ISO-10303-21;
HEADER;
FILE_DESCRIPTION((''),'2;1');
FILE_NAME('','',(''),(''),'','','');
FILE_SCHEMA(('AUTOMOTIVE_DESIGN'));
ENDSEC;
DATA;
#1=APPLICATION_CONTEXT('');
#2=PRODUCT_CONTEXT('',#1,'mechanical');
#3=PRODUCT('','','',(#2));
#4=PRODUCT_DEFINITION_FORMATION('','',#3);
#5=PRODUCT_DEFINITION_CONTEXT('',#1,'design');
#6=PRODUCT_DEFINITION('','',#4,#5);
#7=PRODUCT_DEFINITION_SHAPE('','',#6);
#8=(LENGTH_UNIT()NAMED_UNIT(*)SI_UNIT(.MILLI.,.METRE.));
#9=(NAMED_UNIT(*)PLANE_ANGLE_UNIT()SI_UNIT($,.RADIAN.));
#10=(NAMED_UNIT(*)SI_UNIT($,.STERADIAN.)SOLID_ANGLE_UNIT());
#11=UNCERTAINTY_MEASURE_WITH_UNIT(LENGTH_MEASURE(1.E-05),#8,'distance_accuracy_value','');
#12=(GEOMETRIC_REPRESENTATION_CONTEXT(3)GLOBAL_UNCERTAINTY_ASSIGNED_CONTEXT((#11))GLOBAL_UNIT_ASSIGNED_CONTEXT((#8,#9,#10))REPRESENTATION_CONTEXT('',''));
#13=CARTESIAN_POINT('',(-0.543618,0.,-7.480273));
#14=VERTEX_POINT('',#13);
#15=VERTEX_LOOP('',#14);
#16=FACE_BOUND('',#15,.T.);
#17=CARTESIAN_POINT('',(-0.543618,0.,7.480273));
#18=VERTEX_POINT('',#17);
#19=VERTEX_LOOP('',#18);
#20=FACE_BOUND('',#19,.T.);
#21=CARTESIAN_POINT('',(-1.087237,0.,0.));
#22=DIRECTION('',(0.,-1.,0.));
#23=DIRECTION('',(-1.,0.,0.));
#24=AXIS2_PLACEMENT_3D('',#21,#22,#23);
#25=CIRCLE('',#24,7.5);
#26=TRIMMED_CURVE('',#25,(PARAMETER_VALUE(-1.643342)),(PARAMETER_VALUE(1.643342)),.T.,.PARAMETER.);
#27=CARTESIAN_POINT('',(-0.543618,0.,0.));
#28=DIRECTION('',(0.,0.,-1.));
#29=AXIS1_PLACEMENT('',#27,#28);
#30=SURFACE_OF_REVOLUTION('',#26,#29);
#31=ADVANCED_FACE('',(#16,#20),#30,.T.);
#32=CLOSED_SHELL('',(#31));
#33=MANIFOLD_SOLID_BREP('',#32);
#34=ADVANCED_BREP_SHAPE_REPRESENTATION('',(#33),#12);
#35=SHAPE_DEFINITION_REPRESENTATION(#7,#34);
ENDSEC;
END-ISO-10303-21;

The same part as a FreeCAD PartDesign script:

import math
import FreeCAD as App
import Part
import Sketcher

V = App.Vector
Q = App.Units.Quantity

doc = App.newDocument("Part")
params = doc.addObject("Spreadsheet::Sheet", "Params")
for row, (alias, value) in enumerate([
    ("sketch1_radius", "7.5 mm"),
    ("revolution_angle", "360 deg"),
], start=1):
    params.set(f"A{row}", alias)
    params.set(f"B{row}", "=" + value)
    params.setAlias(f"B{row}", alias)

body = doc.addObject("PartDesign::Body", "Body")

sketch1 = body.newObject("Sketcher::SketchObject", "Sketch")
sketch1.AttachmentSupport = (doc.getObject("XZ_Plane"), [""])
sketch1.MapMode = "FlatFace"
sketch1.addGeometry([
    Part.LineSegment(V(-1, -7, 0), V(-1, 7, 0)),
    Part.ArcOfCircle(Part.Circle(V(0, 0, 0), V(0, 0, 1), 8), math.radians(-94), math.radians(94)),
], False)
sketch1.addGeometry(Part.LineSegment(V(-1, -7, 0), V(-1, 7, 0)), True)
sketch1.addConstraint([
    Sketcher.Constraint("Coincident", 0, 1, 1, 1),
    Sketcher.Constraint("Coincident", 1, 2, 0, 2),
    Sketcher.Constraint("Vertical", 0),
    Sketcher.Constraint("Vertical", 2),
    Sketcher.Constraint("Coincident", 1, 3, -1, 1),
    Sketcher.Constraint("Coincident", 2, 1, 0, 1),
    Sketcher.Constraint("Equal", 0, 2),
    Sketcher.Constraint("Radius", 1, Q("7.5 mm")),
    Sketcher.Constraint("DistanceY", 0, 1, 0, 2, Q("14.960545 mm")),
])
sketch1.setExpression("Constraints[7]", "Params.sketch1_radius")
revolution = body.newObject("PartDesign::Revolution", "Revolution")
revolution.Profile = sketch1
revolution.ReferenceAxis = (sketch1, ["Axis0"])
revolution.setExpression("Angle", "Params.revolution_angle")

doc.recompute()
